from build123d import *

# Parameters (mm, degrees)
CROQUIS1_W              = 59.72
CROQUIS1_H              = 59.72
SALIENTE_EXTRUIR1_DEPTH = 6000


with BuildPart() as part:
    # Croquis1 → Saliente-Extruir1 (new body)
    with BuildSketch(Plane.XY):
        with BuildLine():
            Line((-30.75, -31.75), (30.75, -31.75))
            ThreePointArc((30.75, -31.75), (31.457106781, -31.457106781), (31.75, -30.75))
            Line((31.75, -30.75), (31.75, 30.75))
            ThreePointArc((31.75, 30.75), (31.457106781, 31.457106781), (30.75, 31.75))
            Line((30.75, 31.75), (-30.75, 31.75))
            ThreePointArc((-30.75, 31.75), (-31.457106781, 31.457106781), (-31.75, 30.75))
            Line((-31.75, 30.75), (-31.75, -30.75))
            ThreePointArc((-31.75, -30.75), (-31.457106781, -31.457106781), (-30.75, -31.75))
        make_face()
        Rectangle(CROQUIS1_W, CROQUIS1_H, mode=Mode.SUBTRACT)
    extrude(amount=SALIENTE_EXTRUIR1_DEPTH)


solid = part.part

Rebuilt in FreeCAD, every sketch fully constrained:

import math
import FreeCAD as App
import Part
import Sketcher
from FreeCAD import Vector

doc = App.newDocument("Part")
body = doc.addObject("PartDesign::Body", "Body")

# Sketch on XY plane
sketch1 = body.newObject("Sketcher::SketchObject", "Sketch")
sketch1.AttachmentSupport = (doc.getObject("XY_Plane"), [""])
sketch1.MapMode = "FlatFace"
sketch1.addGeometry(Part.LineSegment(Vector(-30.8, -31.8, 0), Vector(30.8, -31.8, 0)), False)
sketch1.addGeometry(Part.ArcOfCircle(Part.Circle(Vector(30.7, -30.7, 0), Vector(0, 0, 1), 1), math.radians(-90), math.radians(0)), False)
sketch1.addGeometry(Part.LineSegment(Vector(31.8, -30.8, 0), Vector(31.8, 30.8, 0)), False)
sketch1.addGeometry(Part.ArcOfCircle(Part.Circle(Vector(30.7, 30.7, 0), Vector(0, 0, 1), 1), math.radians(0), math.radians(90)), False)
sketch1.addGeometry(Part.LineSegment(Vector(30.8, 31.8, 0), Vector(-30.8, 31.8, 0)), False)
sketch1.addGeometry(Part.ArcOfCircle(Part.Circle(Vector(-30.7, 30.7, 0), Vector(0, 0, 1), 1), math.radians(90), math.radians(180)), False)
sketch1.addGeometry(Part.LineSegment(Vector(-31.8, 30.8, 0), Vector(-31.8, -30.8, 0)), False)
sketch1.addGeometry(Part.ArcOfCircle(Part.Circle(Vector(-30.7, -30.7, 0), Vector(0, 0, 1), 1), math.radians(-180), math.radians(-90)), False)
sketch1.addGeometry(Part.LineSegment(Vector(29.9, -29.9, 0), Vector(-29.9, -29.9, 0)), False)
sketch1.addGeometry(Part.LineSegment(Vector(-29.9, -29.9, 0), Vector(-29.9, 29.9, 0)), False)
sketch1.addGeometry(Part.LineSegment(Vector(-29.9, 29.9, 0), Vector(29.9, 29.9, 0)), False)
sketch1.addGeometry(Part.LineSegment(Vector(29.9, 29.9, 0), Vector(29.9, -29.9, 0)), False)
sketch1.addConstraint(Sketcher.Constraint("Tangent", 0, 2, 1, 1))
sketch1.addConstraint(Sketcher.Constraint("Tangent", 1, 2, 2, 1))
sketch1.addConstraint(Sketcher.Constraint("Tangent", 2, 2, 3, 1))
sketch1.addConstraint(Sketcher.Constraint("Tangent", 3, 2, 4, 1))
sketch1.addConstraint(Sketcher.Constraint("Tangent", 4, 2, 5, 1))
sketch1.addConstraint(Sketcher.Constraint("Tangent", 5, 2, 6, 1))
sketch1.addConstraint(Sketcher.Constraint("Tangent", 6, 2, 7, 1))
sketch1.addConstraint(Sketcher.Constraint("Tangent", 7, 2, 0, 1))
sketch1.addConstraint(Sketcher.Constraint("Coincident", 8, 2, 9, 1))
sketch1.addConstraint(Sketcher.Constraint("Coincident", 9, 2, 10, 1))
sketch1.addConstraint(Sketcher.Constraint("Coincident", 10, 2, 11, 1))
sketch1.addConstraint(Sketcher.Constraint("Coincident", 11, 2, 8, 1))
sketch1.addConstraint(Sketcher.Constraint("Horizontal", 0))
sketch1.addConstraint(Sketcher.Constraint("Vertical", 2))
sketch1.addConstraint(Sketcher.Constraint("Horizontal", 4))
sketch1.addConstraint(Sketcher.Constraint("Vertical", 6))
sketch1.addConstraint(Sketcher.Constraint("Horizontal", 8))
sketch1.addConstraint(Sketcher.Constraint("Vertical", 9))
sketch1.addConstraint(Sketcher.Constraint("Horizontal", 10))
sketch1.addConstraint(Sketcher.Constraint("Vertical", 11))
sketch1.addConstraint(Sketcher.Constraint("Equal", 1, 3))
sketch1.addConstraint(Sketcher.Constraint("Equal", 3, 5))
sketch1.addConstraint(Sketcher.Constraint("Equal", 5, 7))
sketch1.addConstraint(Sketcher.Constraint("Symmetric", 1, 3, 5, 3, -1, 1))
sketch1.addConstraint(Sketcher.Constraint("Symmetric", 8, 2, 10, 2, -1, 1))
sketch1.addConstraint(Sketcher.Constraint("Equal", 4, 2))
sketch1.addConstraint(Sketcher.Constraint("Equal", 10, 9))
sketch1.addConstraint(Sketcher.Constraint("Radius", 1, 1.0))
sketch1.addConstraint(Sketcher.Constraint("DistanceX", 0, 1, 0, 2, 61.5))
sketch1.addConstraint(Sketcher.Constraint("DistanceX", 8, 2, 8, 1, 59.72))
pad1 = body.newObject("PartDesign::Pad", "Pad")
pad1.Profile = sketch1
pad1.Length = 6000

doc.recompute()
